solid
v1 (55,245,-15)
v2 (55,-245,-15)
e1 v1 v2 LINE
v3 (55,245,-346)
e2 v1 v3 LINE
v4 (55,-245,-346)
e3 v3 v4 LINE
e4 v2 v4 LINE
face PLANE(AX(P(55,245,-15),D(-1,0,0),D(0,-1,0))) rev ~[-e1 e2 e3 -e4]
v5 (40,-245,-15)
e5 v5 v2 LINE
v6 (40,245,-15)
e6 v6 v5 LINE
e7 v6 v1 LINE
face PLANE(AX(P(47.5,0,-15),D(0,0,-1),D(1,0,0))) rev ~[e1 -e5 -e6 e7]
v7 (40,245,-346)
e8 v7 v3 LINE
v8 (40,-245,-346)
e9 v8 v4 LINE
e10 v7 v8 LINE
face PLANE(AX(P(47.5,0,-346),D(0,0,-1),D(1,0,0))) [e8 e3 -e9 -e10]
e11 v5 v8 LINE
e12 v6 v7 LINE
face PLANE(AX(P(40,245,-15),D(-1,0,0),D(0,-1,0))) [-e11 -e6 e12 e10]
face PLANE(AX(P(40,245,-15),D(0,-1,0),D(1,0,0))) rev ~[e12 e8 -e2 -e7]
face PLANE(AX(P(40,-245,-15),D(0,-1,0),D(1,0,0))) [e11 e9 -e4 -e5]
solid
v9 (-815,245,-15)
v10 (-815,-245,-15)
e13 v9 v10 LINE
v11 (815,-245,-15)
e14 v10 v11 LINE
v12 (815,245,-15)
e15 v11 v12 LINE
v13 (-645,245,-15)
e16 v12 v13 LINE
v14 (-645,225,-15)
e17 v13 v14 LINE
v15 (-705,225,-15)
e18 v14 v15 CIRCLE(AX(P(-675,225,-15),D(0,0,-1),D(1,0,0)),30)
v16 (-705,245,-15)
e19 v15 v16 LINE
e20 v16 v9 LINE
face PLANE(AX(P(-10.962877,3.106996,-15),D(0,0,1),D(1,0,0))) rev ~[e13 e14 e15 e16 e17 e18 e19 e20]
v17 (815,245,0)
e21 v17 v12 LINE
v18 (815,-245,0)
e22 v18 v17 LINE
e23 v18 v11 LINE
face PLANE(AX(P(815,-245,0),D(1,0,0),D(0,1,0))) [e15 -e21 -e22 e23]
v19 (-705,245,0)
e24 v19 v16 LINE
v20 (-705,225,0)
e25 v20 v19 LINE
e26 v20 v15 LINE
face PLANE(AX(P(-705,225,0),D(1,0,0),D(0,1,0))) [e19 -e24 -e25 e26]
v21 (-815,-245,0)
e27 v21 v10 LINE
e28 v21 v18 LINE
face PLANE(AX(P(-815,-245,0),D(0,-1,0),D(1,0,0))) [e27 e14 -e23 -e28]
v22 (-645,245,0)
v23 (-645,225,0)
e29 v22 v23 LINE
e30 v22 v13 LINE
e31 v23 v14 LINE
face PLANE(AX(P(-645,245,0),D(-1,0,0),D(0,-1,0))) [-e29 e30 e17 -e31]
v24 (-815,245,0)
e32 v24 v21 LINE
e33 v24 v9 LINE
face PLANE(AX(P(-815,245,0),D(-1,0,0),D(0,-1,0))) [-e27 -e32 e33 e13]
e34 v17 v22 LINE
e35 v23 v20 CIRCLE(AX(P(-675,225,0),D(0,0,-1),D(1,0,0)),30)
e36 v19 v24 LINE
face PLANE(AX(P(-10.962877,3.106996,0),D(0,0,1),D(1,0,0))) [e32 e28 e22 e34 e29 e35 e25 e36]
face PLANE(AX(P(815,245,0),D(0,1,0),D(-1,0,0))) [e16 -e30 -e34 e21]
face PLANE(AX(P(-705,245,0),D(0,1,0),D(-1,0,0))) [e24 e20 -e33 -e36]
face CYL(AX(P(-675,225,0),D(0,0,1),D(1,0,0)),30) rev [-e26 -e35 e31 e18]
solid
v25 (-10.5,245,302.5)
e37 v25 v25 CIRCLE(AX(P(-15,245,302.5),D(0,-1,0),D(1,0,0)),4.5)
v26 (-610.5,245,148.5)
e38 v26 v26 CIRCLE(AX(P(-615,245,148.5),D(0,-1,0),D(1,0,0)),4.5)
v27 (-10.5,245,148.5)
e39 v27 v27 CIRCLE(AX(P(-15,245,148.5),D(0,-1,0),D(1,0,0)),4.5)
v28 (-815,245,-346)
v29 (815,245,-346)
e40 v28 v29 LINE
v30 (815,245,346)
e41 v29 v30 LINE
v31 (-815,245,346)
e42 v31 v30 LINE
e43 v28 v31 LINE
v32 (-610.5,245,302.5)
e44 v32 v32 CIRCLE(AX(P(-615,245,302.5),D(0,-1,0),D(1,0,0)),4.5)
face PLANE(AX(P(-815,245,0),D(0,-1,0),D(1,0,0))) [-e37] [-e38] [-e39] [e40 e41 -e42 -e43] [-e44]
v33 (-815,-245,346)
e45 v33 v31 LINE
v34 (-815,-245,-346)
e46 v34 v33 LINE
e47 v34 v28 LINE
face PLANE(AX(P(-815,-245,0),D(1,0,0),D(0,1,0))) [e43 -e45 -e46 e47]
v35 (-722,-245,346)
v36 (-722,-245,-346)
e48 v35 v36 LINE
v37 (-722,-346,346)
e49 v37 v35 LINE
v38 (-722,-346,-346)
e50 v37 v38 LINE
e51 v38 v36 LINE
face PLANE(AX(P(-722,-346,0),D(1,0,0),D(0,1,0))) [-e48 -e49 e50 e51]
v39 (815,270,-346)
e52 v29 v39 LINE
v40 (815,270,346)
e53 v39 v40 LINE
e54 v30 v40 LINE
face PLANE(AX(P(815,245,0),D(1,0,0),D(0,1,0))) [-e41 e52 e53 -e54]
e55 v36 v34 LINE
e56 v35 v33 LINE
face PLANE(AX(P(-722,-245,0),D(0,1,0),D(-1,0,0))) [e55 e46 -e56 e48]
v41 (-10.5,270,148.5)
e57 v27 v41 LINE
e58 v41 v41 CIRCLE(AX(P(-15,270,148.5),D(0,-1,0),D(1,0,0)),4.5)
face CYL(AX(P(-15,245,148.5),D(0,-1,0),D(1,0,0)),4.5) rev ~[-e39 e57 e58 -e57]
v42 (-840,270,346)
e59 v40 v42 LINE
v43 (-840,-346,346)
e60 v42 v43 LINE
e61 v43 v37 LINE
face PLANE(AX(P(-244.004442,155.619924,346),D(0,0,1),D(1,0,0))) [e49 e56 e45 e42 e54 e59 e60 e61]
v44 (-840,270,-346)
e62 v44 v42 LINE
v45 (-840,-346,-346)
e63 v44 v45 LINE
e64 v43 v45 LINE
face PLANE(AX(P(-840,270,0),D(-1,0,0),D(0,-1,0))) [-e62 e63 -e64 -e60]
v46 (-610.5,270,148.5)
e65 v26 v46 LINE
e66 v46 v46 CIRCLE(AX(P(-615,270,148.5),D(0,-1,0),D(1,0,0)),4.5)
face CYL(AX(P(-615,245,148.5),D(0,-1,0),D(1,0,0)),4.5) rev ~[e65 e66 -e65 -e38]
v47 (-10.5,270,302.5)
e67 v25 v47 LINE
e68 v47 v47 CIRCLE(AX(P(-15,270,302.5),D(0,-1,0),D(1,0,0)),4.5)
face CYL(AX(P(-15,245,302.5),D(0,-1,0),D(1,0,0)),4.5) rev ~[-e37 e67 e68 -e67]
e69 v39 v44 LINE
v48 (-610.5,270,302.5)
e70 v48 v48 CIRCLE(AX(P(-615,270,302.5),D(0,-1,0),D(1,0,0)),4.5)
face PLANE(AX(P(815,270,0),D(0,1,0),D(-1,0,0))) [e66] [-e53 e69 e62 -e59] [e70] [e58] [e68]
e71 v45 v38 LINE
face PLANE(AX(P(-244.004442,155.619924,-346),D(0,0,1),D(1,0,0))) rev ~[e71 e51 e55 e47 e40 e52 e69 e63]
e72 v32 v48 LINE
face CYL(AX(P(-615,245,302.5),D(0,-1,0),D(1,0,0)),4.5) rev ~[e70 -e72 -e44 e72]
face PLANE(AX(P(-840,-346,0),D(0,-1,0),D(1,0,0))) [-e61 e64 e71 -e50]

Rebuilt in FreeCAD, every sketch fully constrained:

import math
import FreeCAD as App
import Part
import Sketcher
from FreeCAD import Vector
Q = App.Units.Quantity

doc = App.newDocument("Part")
body = doc.addObject("PartDesign::Body", "Body")

# Sketch on XY plane
sketch1 = doc.addObject("Sketcher::SketchObject", "Sketch")
body.addObject(sketch1)
sketch1.AttachmentSupport = (doc.XY_Plane, [""])
sketch1.MapMode = "FlatFace"
sketch1.addGeometry([
    Part.LineSegment(Vector(-705, 245, 0), Vector(-815, 245, 0)),  # 0
    Part.LineSegment(Vector(-815, 245, 0), Vector(-815, -245, 0)),  # 1
    Part.LineSegment(Vector(-815, -245, 0), Vector(815, -245, 0)),  # 2
    Part.LineSegment(Vector(815, -245, 0), Vector(815, 245, 0)),  # 3
    Part.LineSegment(Vector(815, 245, 0), Vector(-645, 245, 0)),  # 4
    Part.LineSegment(Vector(-645, 245, 0), Vector(-645, 225, 0)),  # 5
    Part.ArcOfCircle(Part.Circle(Vector(-675, 225, 0), Vector(0, 0, 1), 30), math.radians(180), math.radians(360)),  # 6
    Part.LineSegment(Vector(-705, 225, 0), Vector(-705, 245, 0)),  # 7
], False)
sketch1.addConstraint([
    Sketcher.Constraint("Coincident", 0, 2, 1, 1),
    Sketcher.Constraint("Coincident", 1, 2, 2, 1),
    Sketcher.Constraint("Coincident", 2, 2, 3, 1),
    Sketcher.Constraint("Coincident", 3, 2, 4, 1),
    Sketcher.Constraint("Coincident", 4, 2, 5, 1),
    Sketcher.Constraint("Tangent", 5, 2, 6, 2),
    Sketcher.Constraint("Tangent", 6, 1, 7, 1),
    Sketcher.Constraint("Coincident", 7, 2, 0, 1),
    Sketcher.Constraint("Horizontal", 0),
    Sketcher.Constraint("Vertical", 1),
    Sketcher.Constraint("Horizontal", 2),
    Sketcher.Constraint("Vertical", 3),
    Sketcher.Constraint("Horizontal", 4),
    Sketcher.Constraint("Vertical", 5),
    Sketcher.Constraint("Vertical", 7),
    Sketcher.Constraint("Symmetric", 0, 2, 2, 2, -1, 1),
    Sketcher.Constraint("Horizontal", 0, 2, 3, 2),
    Sketcher.Constraint("Radius", 6, Q("30 mm")),
    Sketcher.Constraint("DistanceX", 0, 2, 0, 1, Q("110 mm")),
    Sketcher.Constraint("DistanceX", 2, 1, 2, 2, Q("1630 mm")),
    Sketcher.Constraint("DistanceY", 1, 2, 1, 1, Q("490 mm")),
    Sketcher.Constraint("DistanceY", 5, 2, 5, 1, Q("20 mm")),
])
pad1 = doc.addObject("PartDesign::Pad", "Pad")
body.addObject(pad1)
pad1.Profile = sketch1
pad1.Length = 15
pad1.Reversed = True
body2 = doc.addObject("PartDesign::Body", "Body001")

# Sketch on XY plane
sketch2 = doc.addObject("Sketcher::SketchObject", "Sketch001")
body2.addObject(sketch2)
sketch2.AttachmentSupport = (doc.getObject("XY_Plane001"), [""])
sketch2.MapMode = "FlatFace"
sketch2.addGeometry([
    Part.LineSegment(Vector(-722, -245, 0), Vector(-815, -245, 0)),  # 0
    Part.LineSegment(Vector(-815, -245, 0), Vector(-815, 245, 0)),  # 1
    Part.LineSegment(Vector(-815, 245, 0), Vector(815, 245, 0)),  # 2
    Part.LineSegment(Vector(815, 245, 0), Vector(815, 270, 0)),  # 3
    Part.LineSegment(Vector(815, 270, 0), Vector(-840, 270, 0)),  # 4
    Part.LineSegment(Vector(-840, 270, 0), Vector(-840, -346, 0)),  # 5
    Part.LineSegment(Vector(-840, -346, 0), Vector(-722, -346, 0)),  # 6
    Part.LineSegment(Vector(-722, -346, 0), Vector(-722, -245, 0)),  # 7
], False)
sketch2.addConstraint([
    Sketcher.Constraint("Coincident", 0, 2, 1, 1),
    Sketcher.Constraint("Coincident", 1, 2, 2, 1),
    Sketcher.Constraint("Coincident", 2, 2, 3, 1),
    Sketcher.Constraint("Coincident", 3, 2, 4, 1),
    Sketcher.Constraint("Coincident", 4, 2, 5, 1),
    Sketcher.Constraint("Coincident", 5, 2, 6, 1),
    Sketcher.Constraint("Coincident", 6, 2, 7, 1),
    Sketcher.Constraint("Coincident", 7, 2, 0, 1),
    Sketcher.Constraint("Horizontal", 0),
    Sketcher.Constraint("Vertical", 1),
    Sketcher.Constraint("Horizontal", 2),
    Sketcher.Constraint("Vertical", 3),
    Sketcher.Constraint("Horizontal", 4),
    Sketcher.Constraint("Vertical", 5),
    Sketcher.Constraint("Horizontal", 6),
    Sketcher.Constraint("Vertical", 7),
    Sketcher.Constraint("Symmetric", 0, 2, 2, 2, -1, 1),
    Sketcher.Constraint("DistanceX", 0, 2, 0, 1, Q("93 mm")),
    Sketcher.Constraint("DistanceX", 2, 1, 2, 2, Q("1630 mm")),
    Sketcher.Constraint("DistanceX", 4, 2, 4, 1, Q("1655 mm")),
    Sketcher.Constraint("DistanceY", 1, 1, 1, 2, Q("490 mm")),
    Sketcher.Constraint("DistanceY", 3, 1, 3, 2, Q("25 mm")),
    Sketcher.Constraint("DistanceY", 5, 2, 5, 1, Q("616 mm")),
])
pad2 = doc.addObject("PartDesign::Pad", "Pad001")
body2.addObject(pad2)
pad2.Profile = sketch2
pad2.Length = 692
pad2.Midplane = True

# Sketch on XZ plane
sketch3 = doc.addObject("Sketcher::SketchObject", "Sketch002")
body2.addObject(sketch3)
sketch3.AttachmentSupport = (doc.getObject("XZ_Plane001"), [""])
sketch3.MapMode = "FlatFace"
sketch3.AttachmentOffset = App.Placement(Vector(0, 0, -245), App.Rotation())
sketch3.addGeometry([
    Part.Circle(Vector(-615, 302.5, 0), Vector(0, 0, 1), 4.5),
    Part.Circle(Vector(-615, 148.5, 0), Vector(0, 0, 1), 4.5),
    Part.Circle(Vector(-15, 302.5, 0), Vector(0, 0, 1), 4.5),
    Part.Circle(Vector(-15, 148.5, 0), Vector(0, 0, 1), 4.5),
], False)
sketch3.addConstraint([
    Sketcher.Constraint("Equal", 0, 1),
    Sketcher.Constraint("Equal", 1, 2),
    Sketcher.Constraint("Equal", 2, 3),
    Sketcher.Constraint("Horizontal", 0, 3, 2, 3),
    Sketcher.Constraint("Horizontal", 1, 3, 3, 3),
    Sketcher.Constraint("Vertical", 0, 3, 1, 3),
    Sketcher.Constraint("Vertical", 2, 3, 3, 3),
    Sketcher.Constraint("Diameter", 0, Q("9 mm")),
    Sketcher.Constraint("DistanceX", 0, 3, -1, 1, Q("615 mm")),
    Sketcher.Constraint("DistanceX", 2, 3, -1, 1, Q("15 mm")),
    Sketcher.Constraint("DistanceY", 1, 3, 0, 3, Q("154 mm")),
    Sketcher.Constraint("DistanceY", -1, 1, 0, 3, Q("302.5 mm")),
])
pocket1 = doc.addObject("PartDesign::Pocket", "Pocket")
body2.addObject(pocket1)
pocket1.Profile = sketch3
pocket1.Length = 25
body3 = doc.addObject("PartDesign::Body", "Body002")

# Sketch on XY plane
sketch4 = doc.addObject("Sketcher::SketchObject", "Sketch003")
body3.addObject(sketch4)
sketch4.AttachmentSupport = (doc.getObject("XY_Plane002"), [""])
sketch4.MapMode = "FlatFace"
sketch4.AttachmentOffset = App.Placement(Vector(0, 0, -15), App.Rotation())
sketch4.addGeometry([
    Part.LineSegment(Vector(40, -245, 0), Vector(40, 245, 0)),
    Part.LineSegment(Vector(40, 245, 0), Vector(55, 245, 0)),
    Part.LineSegment(Vector(55, 245, 0), Vector(55, -245, 0)),
    Part.LineSegment(Vector(55, -245, 0), Vector(40, -245, 0)),
], False)
sketch4.addConstraint([
    Sketcher.Constraint("Coincident", 0, 2, 1, 1),
    Sketcher.Constraint("Coincident", 1, 2, 2, 1),
    Sketcher.Constraint("Coincident", 2, 2, 3, 1),
    Sketcher.Constraint("Coincident", 3, 2, 0, 1),
    Sketcher.Constraint("Vertical", 0),
    Sketcher.Constraint("Horizontal", 1),
    Sketcher.Constraint("Vertical", 2),
    Sketcher.Constraint("Horizontal", 3),
    Sketcher.Constraint("DistanceX", 1, 1, 1, 2, Q("15 mm")),
    Sketcher.Constraint("DistanceY", 0, 1, 0, 2, Q("490 mm")),
    Sketcher.Constraint("DistanceX", -1, 1, 0, 2, Q("40 mm")),
    Sketcher.Constraint("DistanceY", -1, 1, 0, 2, Q("245 mm")),
])
pad3 = doc.addObject("PartDesign::Pad", "Pad002")
body3.addObject(pad3)
pad3.Profile = sketch4
pad3.Length = 331
pad3.Reversed = True

doc.recompute()
